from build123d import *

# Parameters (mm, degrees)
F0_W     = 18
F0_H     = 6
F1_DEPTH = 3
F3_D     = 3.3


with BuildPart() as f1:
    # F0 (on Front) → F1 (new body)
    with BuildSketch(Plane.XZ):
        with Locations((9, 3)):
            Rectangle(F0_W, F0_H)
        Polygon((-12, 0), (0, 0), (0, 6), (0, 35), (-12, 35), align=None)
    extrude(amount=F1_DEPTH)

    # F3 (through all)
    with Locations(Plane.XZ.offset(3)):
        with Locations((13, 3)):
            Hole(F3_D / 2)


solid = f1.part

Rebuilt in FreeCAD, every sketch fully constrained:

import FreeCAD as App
import Part
import Sketcher
Q = App.Units.Quantity

doc = App.newDocument("Part")
body = doc.addObject("PartDesign::Body", "Body")

# Sketch on XZ plane
sketch1 = body.newObject("Sketcher::SketchObject", "Sketch")
sketch1.AttachmentSupport = (doc.getObject("XZ_Plane"), [""])
sketch1.MapMode = "FlatFace"
sketch1.addGeometry([
    Part.LineSegment(App.Vector(18, 0, 0), App.Vector(18, 6, 0)),  # 0
    Part.LineSegment(App.Vector(18, 6, 0), App.Vector(0, 6, 0)),  # 1
    Part.LineSegment(App.Vector(0, 6, 0), App.Vector(0, 35, 0)),  # 2
    Part.LineSegment(App.Vector(0, 35, 0), App.Vector(-12, 35, 0)),  # 3
    Part.LineSegment(App.Vector(-12, 35, 0), App.Vector(-12, 0, 0)),  # 4
    Part.LineSegment(App.Vector(-12, 0, 0), App.Vector(18, 0, 0)),  # 5
], False)
sketch1.addConstraint([
    Sketcher.Constraint("Coincident", 0, 2, 1, 1),
    Sketcher.Constraint("Coincident", 1, 2, 2, 1),
    Sketcher.Constraint("Coincident", 2, 2, 3, 1),
    Sketcher.Constraint("Coincident", 3, 2, 4, 1),
    Sketcher.Constraint("Coincident", 4, 2, 5, 1),
    Sketcher.Constraint("Coincident", 5, 2, 0, 1),
    Sketcher.Constraint("Vertical", 0),
    Sketcher.Constraint("Horizontal", 1),
    Sketcher.Constraint("Vertical", 2),
    Sketcher.Constraint("Horizontal", 3),
    Sketcher.Constraint("Vertical", 4),
    Sketcher.Constraint("Horizontal", 5),
    Sketcher.Constraint("PointOnObject", 1, 2, -2),
    Sketcher.Constraint("PointOnObject", 4, 2, -1),
    Sketcher.Constraint("DistanceX", 1, 2, 1, 1, Q("18 mm")),
    Sketcher.Constraint("DistanceX", 3, 2, 3, 1, Q("12 mm")),
    Sketcher.Constraint("DistanceY", 0, 1, 0, 2, Q("6 mm")),
    Sketcher.Constraint("DistanceY", 2, 1, 2, 2, Q("29 mm")),
])
pad1 = body.newObject("PartDesign::Pad", "Pad")
pad1.Profile = sketch1
pad1.Length = 3

# Sketch on XZ plane
sketch2 = body.newObject("Sketcher::SketchObject", "Sketch001")
sketch2.AttachmentSupport = (doc.getObject("XZ_Plane"), [""])
sketch2.MapMode = "FlatFace"
sketch2.AttachmentOffset = App.Placement(App.Vector(0, 0, 3), App.Rotation())
sketch2.addGeometry(Part.Circle(App.Vector(13, 3, 0), App.Vector(0, 0, 1), 1.65), False)
sketch2.addConstraint([
    Sketcher.Constraint("Diameter", 0, Q("3.3 mm")),
    Sketcher.Constraint("DistanceX", -1, 1, 0, 3, Q("13 mm")),
    Sketcher.Constraint("DistanceY", -1, 1, 0, 3, Q("3 mm")),
])
doc.recompute()
hole = body.newObject("PartDesign::Hole", "Hole")
hole.Profile = sketch2
hole.ThreadType = "None"
hole.Diameter = 3.3
hole.DepthType = "ThroughAll"

doc.recompute()
